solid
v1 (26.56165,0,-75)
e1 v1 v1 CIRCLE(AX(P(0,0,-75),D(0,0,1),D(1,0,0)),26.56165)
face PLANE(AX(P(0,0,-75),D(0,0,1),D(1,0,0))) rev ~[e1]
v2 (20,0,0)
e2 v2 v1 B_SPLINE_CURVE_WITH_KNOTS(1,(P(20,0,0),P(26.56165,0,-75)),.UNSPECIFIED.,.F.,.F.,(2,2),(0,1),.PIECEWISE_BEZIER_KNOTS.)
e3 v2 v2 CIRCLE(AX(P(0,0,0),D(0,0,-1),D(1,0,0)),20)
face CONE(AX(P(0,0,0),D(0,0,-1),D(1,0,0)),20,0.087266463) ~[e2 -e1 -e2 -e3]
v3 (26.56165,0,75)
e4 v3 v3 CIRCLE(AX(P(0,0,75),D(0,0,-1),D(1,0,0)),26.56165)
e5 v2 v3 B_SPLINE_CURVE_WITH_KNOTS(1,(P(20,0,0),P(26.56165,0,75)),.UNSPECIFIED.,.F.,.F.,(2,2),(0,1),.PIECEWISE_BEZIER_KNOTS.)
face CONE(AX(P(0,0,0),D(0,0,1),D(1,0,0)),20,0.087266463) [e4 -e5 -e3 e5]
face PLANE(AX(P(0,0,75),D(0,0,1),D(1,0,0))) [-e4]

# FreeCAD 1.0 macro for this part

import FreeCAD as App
import Part
import Sketcher

doc = App.newDocument("Part")
body = doc.addObject("PartDesign::Body", "Body")

# Sketch on XY plane
sketch1 = body.newObject("Sketcher::SketchObject", "Sketch")
sketch1.AttachmentSupport = (doc.getObject("XY_Plane"), [""])
sketch1.MapMode = "FlatFace"
sketch1.addGeometry(Part.Circle(App.Vector(0, 0, 0), App.Vector(0, 0, 1), 20), False)
sketch1.addConstraint([
    Sketcher.Constraint("Coincident", 0, 3, -1, 1),
    Sketcher.Constraint("Diameter", 0, 40.0),
])
pad1 = body.newObject("PartDesign::Pad", "Pad")
pad1.Profile = sketch1
pad1.Length = 150
pad1.Midplane = True
pad1.TaperAngle = 5

doc.recompute()
